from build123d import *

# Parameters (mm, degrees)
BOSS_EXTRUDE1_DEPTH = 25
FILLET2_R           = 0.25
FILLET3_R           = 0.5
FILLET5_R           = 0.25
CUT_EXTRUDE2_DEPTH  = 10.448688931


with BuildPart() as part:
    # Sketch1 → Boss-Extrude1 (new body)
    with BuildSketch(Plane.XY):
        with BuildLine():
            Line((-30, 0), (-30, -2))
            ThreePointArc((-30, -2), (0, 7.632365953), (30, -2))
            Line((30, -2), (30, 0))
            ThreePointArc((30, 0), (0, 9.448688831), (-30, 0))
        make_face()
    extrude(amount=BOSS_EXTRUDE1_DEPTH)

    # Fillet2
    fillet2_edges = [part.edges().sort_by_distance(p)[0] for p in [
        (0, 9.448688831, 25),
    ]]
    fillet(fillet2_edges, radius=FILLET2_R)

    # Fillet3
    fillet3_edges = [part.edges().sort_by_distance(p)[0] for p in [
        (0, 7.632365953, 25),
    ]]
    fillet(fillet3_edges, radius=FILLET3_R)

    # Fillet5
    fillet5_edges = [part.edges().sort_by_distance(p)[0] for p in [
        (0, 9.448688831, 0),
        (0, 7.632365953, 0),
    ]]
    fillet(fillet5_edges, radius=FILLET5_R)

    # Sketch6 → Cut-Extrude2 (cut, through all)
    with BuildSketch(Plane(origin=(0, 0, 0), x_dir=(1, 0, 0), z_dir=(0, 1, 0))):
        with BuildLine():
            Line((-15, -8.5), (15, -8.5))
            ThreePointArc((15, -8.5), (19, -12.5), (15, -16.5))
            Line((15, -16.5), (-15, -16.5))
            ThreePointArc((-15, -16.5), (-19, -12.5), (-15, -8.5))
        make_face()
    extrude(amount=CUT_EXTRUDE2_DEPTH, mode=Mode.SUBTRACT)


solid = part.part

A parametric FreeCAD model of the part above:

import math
import FreeCAD as App
import Part
import Sketcher


def edges_at(feature, points):
    """Names of the edges that pass closest to the given points."""
    edges = feature.Shape.Edges
    near = lambda p: min(range(len(edges)), key=lambda i: edges[i].distToShape(Part.Vertex(*p))[0])
    return sorted({f"Edge{near(p) + 1}" for p in points})

doc = App.newDocument("Part")
body = doc.addObject("PartDesign::Body", "Body")

# Sketch on XY plane
sketch1 = body.newObject("Sketcher::SketchObject", "Sketch")
sketch1.AttachmentSupport = (doc.getObject("XY_Plane"), [""])
sketch1.MapMode = "FlatFace"
sketch1.addGeometry([
    Part.LineSegment(App.Vector(-30, 0, 0), App.Vector(-30, -2, 0)),
    Part.ArcOfCircle(Part.Circle(App.Vector(0, -43.9, 0), App.Vector(0, 0, 1), 51.5), math.radians(54), math.radians(126)),
    Part.LineSegment(App.Vector(30, -2, 0), App.Vector(30, 0, 0)),
    Part.ArcOfCircle(Part.Circle(App.Vector(0, -42.9, 0), App.Vector(0, 0, 1), 52.4), math.radians(55), math.radians(125)),
], False)
sketch1.addConstraint([
    Sketcher.Constraint("Coincident", 0, 2, 1, 2),
    Sketcher.Constraint("Coincident", 1, 1, 2, 1),
    Sketcher.Constraint("Coincident", 2, 2, 3, 1),
    Sketcher.Constraint("Coincident", 3, 2, 0, 1),
    Sketcher.Constraint("Vertical", 0),
    Sketcher.Constraint("Vertical", 2),
    Sketcher.Constraint("Symmetric", 2, 2, 3, 2, -1, 1),
    Sketcher.Constraint("PointOnObject", 1, 3, -2),
    Sketcher.Constraint("PointOnObject", 3, 3, -2),
    Sketcher.Constraint("DistanceY", 0, 2, 0, 1, 2.0),
    Sketcher.Constraint("Radius", 3, 52.35),
    Sketcher.Constraint("DistanceX", 0, 2, -1, 1, 30.0),
    Sketcher.Constraint("DistanceY", 1, 3, 3, 3, 1.0),
])
pad1 = body.newObject("PartDesign::Pad", "Pad")
pad1.Profile = sketch1
pad1.Length = 25
doc.recompute()

fillet = body.newObject("PartDesign::Fillet", "Fillet")
fillet.Base = (pad1, edges_at(pad1, [(0, 9.449, 25)]))
fillet.Radius = 0.25
doc.recompute()

fillet2 = body.newObject("PartDesign::Fillet", "Fillet001")
fillet2.Base = (fillet, edges_at(fillet, [(0, 7.632, 25)]))
fillet2.Radius = 0.5
doc.recompute()

fillet3 = body.newObject("PartDesign::Fillet", "Fillet002")
fillet3.Base = (fillet2, edges_at(fillet2, [(0, 9.449, 0), (0, 7.632, 0)]))
fillet3.Radius = 0.25

# Sketch on XZ plane
sketch2 = body.newObject("Sketcher::SketchObject", "Sketch001")
sketch2.AttachmentSupport = (doc.getObject("XZ_Plane"), [""])
sketch2.MapMode = "FlatFace"
sketch2.addGeometry([
    Part.LineSegment(App.Vector(15, 8.5, 0), App.Vector(-15, 8.5, 0)),
    Part.ArcOfCircle(Part.Circle(App.Vector(-15, 12.5, 0), App.Vector(0, 0, 1), 4), math.radians(90), math.radians(270)),
    Part.LineSegment(App.Vector(-15, 16.5, 0), App.Vector(15, 16.5, 0)),
    Part.ArcOfCircle(Part.Circle(App.Vector(15, 12.5, 0), App.Vector(0, 0, 1), 4), math.radians(-90), math.radians(90)),
], False)
sketch2.addConstraint([
    Sketcher.Constraint("Tangent", 0, 2, 1, 2),
    Sketcher.Constraint("Tangent", 1, 1, 2, 1),
    Sketcher.Constraint("Tangent", 2, 2, 3, 2),
    Sketcher.Constraint("Tangent", 3, 1, 0, 1),
    Sketcher.Constraint("Horizontal", 0),
    Sketcher.Constraint("Horizontal", 2),
    Sketcher.Constraint("Radius", 1, 4.0),
    Sketcher.Constraint("DistanceX", 0, 2, 0, 1, 30.0),
    Sketcher.Constraint("DistanceX", 1, 3, -1, 1, 15.0),
    Sketcher.Constraint("DistanceY", -1, 1, 1, 3, 12.5),
])
pocket1 = body.newObject("PartDesign::Pocket", "Pocket")
pocket1.Profile = sketch2
pocket1.Type = "ThroughAll"

doc.recompute()
